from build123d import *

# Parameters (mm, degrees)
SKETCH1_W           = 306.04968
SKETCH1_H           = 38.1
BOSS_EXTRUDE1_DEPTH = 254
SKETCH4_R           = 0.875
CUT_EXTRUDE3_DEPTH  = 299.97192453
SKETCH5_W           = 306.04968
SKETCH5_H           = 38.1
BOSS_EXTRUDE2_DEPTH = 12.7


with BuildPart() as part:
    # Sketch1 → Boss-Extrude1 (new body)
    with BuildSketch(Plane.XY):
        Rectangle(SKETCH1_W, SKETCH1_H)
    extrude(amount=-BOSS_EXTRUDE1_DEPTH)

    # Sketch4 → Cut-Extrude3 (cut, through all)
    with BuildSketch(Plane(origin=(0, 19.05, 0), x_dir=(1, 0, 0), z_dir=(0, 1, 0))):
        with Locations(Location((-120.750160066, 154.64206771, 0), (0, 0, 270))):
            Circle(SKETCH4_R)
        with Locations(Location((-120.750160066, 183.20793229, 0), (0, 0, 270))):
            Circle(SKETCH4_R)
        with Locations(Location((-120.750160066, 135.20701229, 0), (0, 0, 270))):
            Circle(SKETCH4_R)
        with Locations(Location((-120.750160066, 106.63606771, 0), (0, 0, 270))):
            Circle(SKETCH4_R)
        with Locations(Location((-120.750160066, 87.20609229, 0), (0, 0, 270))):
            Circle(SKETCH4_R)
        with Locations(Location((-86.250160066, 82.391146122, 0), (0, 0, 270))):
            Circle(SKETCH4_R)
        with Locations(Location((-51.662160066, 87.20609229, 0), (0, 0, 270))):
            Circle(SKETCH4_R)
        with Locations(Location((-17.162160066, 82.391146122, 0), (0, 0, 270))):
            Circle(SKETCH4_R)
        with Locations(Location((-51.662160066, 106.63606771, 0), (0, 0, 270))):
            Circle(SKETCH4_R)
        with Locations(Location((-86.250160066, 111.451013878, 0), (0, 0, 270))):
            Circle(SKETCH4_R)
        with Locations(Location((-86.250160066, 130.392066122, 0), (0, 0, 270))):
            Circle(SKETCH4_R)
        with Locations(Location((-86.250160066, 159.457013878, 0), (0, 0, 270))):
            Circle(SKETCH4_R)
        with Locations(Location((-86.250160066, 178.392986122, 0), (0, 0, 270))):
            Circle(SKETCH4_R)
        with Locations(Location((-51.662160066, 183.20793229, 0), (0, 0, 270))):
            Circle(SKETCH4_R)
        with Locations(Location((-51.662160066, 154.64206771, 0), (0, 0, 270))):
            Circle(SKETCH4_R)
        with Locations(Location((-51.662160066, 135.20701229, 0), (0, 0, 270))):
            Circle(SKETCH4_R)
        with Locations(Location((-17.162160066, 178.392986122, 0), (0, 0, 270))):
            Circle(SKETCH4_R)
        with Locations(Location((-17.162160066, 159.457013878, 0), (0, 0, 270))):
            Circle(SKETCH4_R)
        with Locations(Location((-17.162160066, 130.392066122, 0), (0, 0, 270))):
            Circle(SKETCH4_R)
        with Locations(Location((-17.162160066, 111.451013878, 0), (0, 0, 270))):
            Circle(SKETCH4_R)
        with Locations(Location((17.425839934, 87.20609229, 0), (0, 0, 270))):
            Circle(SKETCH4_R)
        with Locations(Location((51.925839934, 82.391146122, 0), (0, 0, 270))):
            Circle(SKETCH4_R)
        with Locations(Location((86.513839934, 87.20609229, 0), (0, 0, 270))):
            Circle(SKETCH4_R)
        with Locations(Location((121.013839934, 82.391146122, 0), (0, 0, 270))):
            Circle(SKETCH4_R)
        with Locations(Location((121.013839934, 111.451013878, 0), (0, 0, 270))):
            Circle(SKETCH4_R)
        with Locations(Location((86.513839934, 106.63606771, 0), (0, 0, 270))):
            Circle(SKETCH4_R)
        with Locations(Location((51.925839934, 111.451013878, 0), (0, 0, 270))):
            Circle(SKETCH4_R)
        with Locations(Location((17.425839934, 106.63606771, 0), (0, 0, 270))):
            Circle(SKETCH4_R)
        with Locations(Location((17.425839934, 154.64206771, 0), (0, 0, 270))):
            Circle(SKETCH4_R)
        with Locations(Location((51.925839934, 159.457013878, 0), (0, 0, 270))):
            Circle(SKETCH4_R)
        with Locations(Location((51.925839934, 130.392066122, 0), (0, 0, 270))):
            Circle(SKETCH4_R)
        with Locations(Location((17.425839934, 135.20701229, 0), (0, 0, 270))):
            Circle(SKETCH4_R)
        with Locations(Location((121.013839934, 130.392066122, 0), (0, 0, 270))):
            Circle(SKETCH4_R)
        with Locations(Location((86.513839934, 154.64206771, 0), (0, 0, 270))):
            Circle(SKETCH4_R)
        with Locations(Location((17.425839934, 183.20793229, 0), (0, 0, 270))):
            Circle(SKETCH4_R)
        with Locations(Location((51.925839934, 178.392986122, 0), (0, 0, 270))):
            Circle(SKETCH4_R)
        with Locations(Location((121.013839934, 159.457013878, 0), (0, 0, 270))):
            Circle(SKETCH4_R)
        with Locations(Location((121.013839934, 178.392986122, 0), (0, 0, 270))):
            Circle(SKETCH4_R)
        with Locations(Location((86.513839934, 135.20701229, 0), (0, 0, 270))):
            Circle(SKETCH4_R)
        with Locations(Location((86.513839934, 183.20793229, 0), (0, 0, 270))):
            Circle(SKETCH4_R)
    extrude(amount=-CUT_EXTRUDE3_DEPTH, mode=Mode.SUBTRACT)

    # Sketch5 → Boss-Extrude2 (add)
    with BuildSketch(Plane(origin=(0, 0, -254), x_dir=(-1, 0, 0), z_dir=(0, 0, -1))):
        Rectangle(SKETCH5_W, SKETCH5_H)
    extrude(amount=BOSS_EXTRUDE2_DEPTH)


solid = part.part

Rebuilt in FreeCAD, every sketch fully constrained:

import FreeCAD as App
import Part
import Sketcher
from FreeCAD import Vector
Q = App.Units.Quantity

doc = App.newDocument("Part")
body = doc.addObject("PartDesign::Body", "Body")

sketch1 = doc.addObject("Sketcher::SketchObject", "Sketch")
body.addObject(sketch1)
sketch1.AttachmentSupport = (doc.XY_Plane, [""])
sketch1.MapMode = "FlatFace"
sketch1.addGeometry(Part.LineSegment(Vector(-153, 19, 0), Vector(-153, -19, 0)), False)
sketch1.addGeometry(Part.LineSegment(Vector(-153, -19, 0), Vector(153, -19, 0)), False)
sketch1.addGeometry(Part.LineSegment(Vector(153, -19, 0), Vector(153, 19, 0)), False)
sketch1.addGeometry(Part.LineSegment(Vector(153, 19, 0), Vector(-153, 19, 0)), False)
sketch1.addConstraint(Sketcher.Constraint("Coincident", 0, 2, 1, 1))
sketch1.addConstraint(Sketcher.Constraint("Coincident", 1, 2, 2, 1))
sketch1.addConstraint(Sketcher.Constraint("Coincident", 2, 2, 3, 1))
sketch1.addConstraint(Sketcher.Constraint("Coincident", 3, 2, 0, 1))
sketch1.addConstraint(Sketcher.Constraint("Vertical", 0))
sketch1.addConstraint(Sketcher.Constraint("Horizontal", 1))
sketch1.addConstraint(Sketcher.Constraint("Vertical", 2))
sketch1.addConstraint(Sketcher.Constraint("Horizontal", 3))
sketch1.addConstraint(Sketcher.Constraint("Symmetric", 0, 2, 2, 2, -1, 1))
sketch1.addConstraint(Sketcher.Constraint("DistanceY", 0, 2, 0, 1, Q("1.5 in")))
sketch1.addConstraint(Sketcher.Constraint("DistanceX", 1, 1, 1, 2, Q("12.0492 in")))
pad1 = doc.addObject("PartDesign::Pad", "Pad")
body.addObject(pad1)
pad1.Profile = sketch1
pad1.Length = Q("10 in")
pad1.Reversed = True

sketch2 = doc.addObject("Sketcher::SketchObject", "Sketch001")
body.addObject(sketch2)
sketch2.AttachmentSupport = (doc.XZ_Plane, [""])
sketch2.MapMode = "FlatFace"
sketch2.AttachmentOffset = App.Placement(Vector(0, 0, -0.75 * 25.4), App.Rotation())
sketch2.addGeometry(Part.Circle(Vector(-120.8, -154.6, 0), Vector(0, 0, 1), 0.9), False)
sketch2.addGeometry(Part.Circle(Vector(-120.8, -183.2, 0), Vector(0, 0, 1), 0.9), False)
sketch2.addGeometry(Part.Circle(Vector(-120.8, -135.2, 0), Vector(0, 0, 1), 0.9), False)
sketch2.addGeometry(Part.Circle(Vector(-120.8, -106.6, 0), Vector(0, 0, 1), 0.9), False)
sketch2.addGeometry(Part.Circle(Vector(-120.8, -87.2, 0), Vector(0, 0, 1), 0.9), False)
sketch2.addGeometry(Part.Circle(Vector(-86.3, -82.4, 0), Vector(0, 0, 1), 0.9), False)
sketch2.addGeometry(Part.Circle(Vector(-51.7, -87.2, 0), Vector(0, 0, 1), 0.9), False)
sketch2.addGeometry(Part.Circle(Vector(-17.2, -82.4, 0), Vector(0, 0, 1), 0.9), False)
sketch2.addGeometry(Part.Circle(Vector(-51.7, -106.6, 0), Vector(0, 0, 1), 0.9), False)
sketch2.addGeometry(Part.Circle(Vector(-86.3, -111.5, 0), Vector(0, 0, 1), 0.9), False)
sketch2.addGeometry(Part.Circle(Vector(-86.3, -130.4, 0), Vector(0, 0, 1), 0.9), False)
sketch2.addGeometry(Part.Circle(Vector(-86.3, -159.5, 0), Vector(0, 0, 1), 0.9), False)
sketch2.addGeometry(Part.Circle(Vector(-86.3, -178.4, 0), Vector(0, 0, 1), 0.9), False)
sketch2.addGeometry(Part.Circle(Vector(-51.7, -183.2, 0), Vector(0, 0, 1), 0.9), False)
sketch2.addGeometry(Part.Circle(Vector(-51.7, -154.6, 0), Vector(0, 0, 1), 0.9), False)
sketch2.addGeometry(Part.Circle(Vector(-51.7, -135.2, 0), Vector(0, 0, 1), 0.9), False)
sketch2.addGeometry(Part.Circle(Vector(-17.2, -178.4, 0), Vector(0, 0, 1), 0.9), False)
sketch2.addGeometry(Part.Circle(Vector(-17.2, -159.5, 0), Vector(0, 0, 1), 0.9), False)
sketch2.addGeometry(Part.Circle(Vector(-17.2, -130.4, 0), Vector(0, 0, 1), 0.9), False)
sketch2.addGeometry(Part.Circle(Vector(-17.2, -111.5, 0), Vector(0, 0, 1), 0.9), False)
sketch2.addGeometry(Part.Circle(Vector(17.4, -87.2, 0), Vector(0, 0, 1), 0.9), False)
sketch2.addGeometry(Part.Circle(Vector(51.9, -82.4, 0), Vector(0, 0, 1), 0.9), False)
sketch2.addGeometry(Part.Circle(Vector(86.5, -87.2, 0), Vector(0, 0, 1), 0.9), False)
sketch2.addGeometry(Part.Circle(Vector(121, -82.4, 0), Vector(0, 0, 1), 0.9), False)
sketch2.addGeometry(Part.Circle(Vector(121, -111.5, 0), Vector(0, 0, 1), 0.9), False)
sketch2.addGeometry(Part.Circle(Vector(86.5, -106.6, 0), Vector(0, 0, 1), 0.9), False)
sketch2.addGeometry(Part.Circle(Vector(51.9, -111.5, 0), Vector(0, 0, 1), 0.9), False)
sketch2.addGeometry(Part.Circle(Vector(17.4, -106.6, 0), Vector(0, 0, 1), 0.9), False)
sketch2.addGeometry(Part.Circle(Vector(17.4, -154.6, 0), Vector(0, 0, 1), 0.9), False)
sketch2.addGeometry(Part.Circle(Vector(51.9, -159.5, 0), Vector(0, 0, 1), 0.9), False)
sketch2.addGeometry(Part.Circle(Vector(51.9, -130.4, 0), Vector(0, 0, 1), 0.9), False)
sketch2.addGeometry(Part.Circle(Vector(17.4, -135.2, 0), Vector(0, 0, 1), 0.9), False)
sketch2.addGeometry(Part.Circle(Vector(121, -130.4, 0), Vector(0, 0, 1), 0.9), False)
sketch2.addGeometry(Part.Circle(Vector(86.5, -154.6, 0), Vector(0, 0, 1), 0.9), False)
sketch2.addGeometry(Part.Circle(Vector(17.4, -183.2, 0), Vector(0, 0, 1), 0.9), False)
sketch2.addGeometry(Part.Circle(Vector(51.9, -178.4, 0), Vector(0, 0, 1), 0.9), False)
sketch2.addGeometry(Part.Circle(Vector(121, -159.5, 0), Vector(0, 0, 1), 0.9), False)
sketch2.addGeometry(Part.Circle(Vector(121, -178.4, 0), Vector(0, 0, 1), 0.9), False)
sketch2.addGeometry(Part.Circle(Vector(86.5, -135.2, 0), Vector(0, 0, 1), 0.9), False)
sketch2.addGeometry(Part.Circle(Vector(86.5, -183.2, 0), Vector(0, 0, 1), 0.9), False)
sketch2.addConstraint(Sketcher.Constraint("Equal", 0, 1))
sketch2.addConstraint(Sketcher.Constraint("Equal", 1, 2))
sketch2.addConstraint(Sketcher.Constraint("Equal", 2, 3))
sketch2.addConstraint(Sketcher.Constraint("Equal", 3, 4))
sketch2.addConstraint(Sketcher.Constraint("Equal", 4, 5))
sketch2.addConstraint(Sketcher.Constraint("Equal", 5, 6))
sketch2.addConstraint(Sketcher.Constraint("Equal", 6, 7))
sketch2.addConstraint(Sketcher.Constraint("Equal", 7, 8))
sketch2.addConstraint(Sketcher.Constraint("Equal", 8, 9))
sketch2.addConstraint(Sketcher.Constraint("Equal", 9, 10))
sketch2.addConstraint(Sketcher.Constraint("Equal", 10, 11))
sketch2.addConstraint(Sketcher.Constraint("Equal", 11, 12))
sketch2.addConstraint(Sketcher.Constraint("Equal", 12, 13))
sketch2.addConstraint(Sketcher.Constraint("Equal", 13, 14))
sketch2.addConstraint(Sketcher.Constraint("Equal", 14, 15))
sketch2.addConstraint(Sketcher.Constraint("Equal", 15, 16))
sketch2.addConstraint(Sketcher.Constraint("Equal", 16, 17))
sketch2.addConstraint(Sketcher.Constraint("Equal", 17, 18))
sketch2.addConstraint(Sketcher.Constraint("Equal", 18, 19))
sketch2.addConstraint(Sketcher.Constraint("Equal", 19, 20))
sketch2.addConstraint(Sketcher.Constraint("Equal", 20, 21))
sketch2.addConstraint(Sketcher.Constraint("Equal", 21, 22))
sketch2.addConstraint(Sketcher.Constraint("Equal", 22, 23))
sketch2.addConstraint(Sketcher.Constraint("Equal", 23, 24))
sketch2.addConstraint(Sketcher.Constraint("Equal", 24, 25))
sketch2.addConstraint(Sketcher.Constraint("Equal", 25, 26))
sketch2.addConstraint(Sketcher.Constraint("Equal", 26, 27))
sketch2.addConstraint(Sketcher.Constraint("Equal", 27, 28))
sketch2.addConstraint(Sketcher.Constraint("Equal", 28, 29))
sketch2.addConstraint(Sketcher.Constraint("Equal", 29, 30))
sketch2.addConstraint(Sketcher.Constraint("Equal", 30, 31))
sketch2.addConstraint(Sketcher.Constraint("Equal", 31, 32))
sketch2.addConstraint(Sketcher.Constraint("Equal", 32, 33))
sketch2.addConstraint(Sketcher.Constraint("Equal", 33, 34))
sketch2.addConstraint(Sketcher.Constraint("Equal", 34, 35))
sketch2.addConstraint(Sketcher.Constraint("Equal", 35, 36))
sketch2.addConstraint(Sketcher.Constraint("Equal", 36, 37))
sketch2.addConstraint(Sketcher.Constraint("Equal", 37, 38))
sketch2.addConstraint(Sketcher.Constraint("Equal", 38, 39))
sketch2.addConstraint(Sketcher.Constraint("Horizontal", 4, 3, 6, 3))
sketch2.addConstraint(Sketcher.Constraint("Horizontal", 5, 3, 7, 3))
sketch2.addConstraint(Sketcher.Constraint("Horizontal", 3, 3, 8, 3))
sketch2.addConstraint(Sketcher.Constraint("Horizontal", 1, 3, 13, 3))
sketch2.addConstraint(Sketcher.Constraint("Horizontal", 0, 3, 14, 3))
sketch2.addConstraint(Sketcher.Constraint("Horizontal", 2, 3, 15, 3))
sketch2.addConstraint(Sketcher.Constraint("Horizontal", 12, 3, 16, 3))
sketch2.addConstraint(Sketcher.Constraint("Horizontal", 11, 3, 17, 3))
sketch2.addConstraint(Sketcher.Constraint("Horizontal", 10, 3, 18, 3))
sketch2.addConstraint(Sketcher.Constraint("Horizontal", 9, 3, 19, 3))
sketch2.addConstraint(Sketcher.Constraint("Horizontal", 6, 3, 20, 3))
sketch2.addConstraint(Sketcher.Constraint("Horizontal", 7, 3, 21, 3))
sketch2.addConstraint(Sketcher.Constraint("Horizontal", 20, 3, 22, 3))
sketch2.addConstraint(Sketcher.Constraint("Horizontal", 21, 3, 23, 3))
sketch2.addConstraint(Sketcher.Constraint("Horizontal", 19, 3, 24, 3))
sketch2.addConstraint(Sketcher.Constraint("Horizontal", 8, 3, 25, 3))
sketch2.addConstraint(Sketcher.Constraint("Horizontal", 24, 3, 26, 3))
sketch2.addConstraint(Sketcher.Constraint("Horizontal", 25, 3, 27, 3))
sketch2.addConstraint(Sketcher.Constraint("Horizontal", 14, 3, 28, 3))
sketch2.addConstraint(Sketcher.Constraint("Horizontal", 17, 3, 29, 3))
sketch2.addConstraint(Sketcher.Constraint("Horizontal", 18, 3, 30, 3))
sketch2.addConstraint(Sketcher.Constraint("Horizontal", 15, 3, 31, 3))
sketch2.addConstraint(Sketcher.Constraint("Horizontal", 30, 3, 32, 3))
sketch2.addConstraint(Sketcher.Constraint("Horizontal", 28, 3, 33, 3))
sketch2.addConstraint(Sketcher.Constraint("Horizontal", 13, 3, 34, 3))
sketch2.addConstraint(Sketcher.Constraint("Horizontal", 16, 3, 35, 3))
sketch2.addConstraint(Sketcher.Constraint("Horizontal", 29, 3, 36, 3))
sketch2.addConstraint(Sketcher.Constraint("Horizontal", 35, 3, 37, 3))
sketch2.addConstraint(Sketcher.Constraint("Horizontal", 31, 3, 38, 3))
sketch2.addConstraint(Sketcher.Constraint("Horizontal", 34, 3, 39, 3))
sketch2.addConstraint(Sketcher.Constraint("Vertical", 0, 3, 1, 3))
sketch2.addConstraint(Sketcher.Constraint("Vertical", 1, 3, 2, 3))
sketch2.addConstraint(Sketcher.Constraint("Vertical", 2, 3, 3, 3))
sketch2.addConstraint(Sketcher.Constraint("Vertical", 3, 3, 4, 3))
sketch2.addConstraint(Sketcher.Constraint("Vertical", 6, 3, 8, 3))
sketch2.addConstraint(Sketcher.Constraint("Vertical", 5, 3, 9, 3))
sketch2.addConstraint(Sketcher.Constraint("Vertical", 9, 3, 10, 3))
sketch2.addConstraint(Sketcher.Constraint("Vertical", 10, 3, 11, 3))
sketch2.addConstraint(Sketcher.Constraint("Vertical", 11, 3, 12, 3))
sketch2.addConstraint(Sketcher.Constraint("Vertical", 8, 3, 13, 3))
sketch2.addConstraint(Sketcher.Constraint("Vertical", 13, 3, 14, 3))
sketch2.addConstraint(Sketcher.Constraint("Vertical", 14, 3, 15, 3))
sketch2.addConstraint(Sketcher.Constraint("Vertical", 7, 3, 16, 3))
sketch2.addConstraint(Sketcher.Constraint("Vertical", 16, 3, 17, 3))
sketch2.addConstraint(Sketcher.Constraint("Vertical", 17, 3, 18, 3))
sketch2.addConstraint(Sketcher.Constraint("Vertical", 18, 3, 19, 3))
sketch2.addConstraint(Sketcher.Constraint("Vertical", 23, 3, 24, 3))
sketch2.addConstraint(Sketcher.Constraint("Vertical", 22, 3, 25, 3))
sketch2.addConstraint(Sketcher.Constraint("Vertical", 21, 3, 26, 3))
sketch2.addConstraint(Sketcher.Constraint("Vertical", 20, 3, 27, 3))
sketch2.addConstraint(Sketcher.Constraint("Vertical", 27, 3, 28, 3))
sketch2.addConstraint(Sketcher.Constraint("Vertical", 26, 3, 29, 3))
sketch2.addConstraint(Sketcher.Constraint("Vertical", 29, 3, 30, 3))
sketch2.addConstraint(Sketcher.Constraint("Vertical", 28, 3, 31, 3))
sketch2.addConstraint(Sketcher.Constraint("Vertical", 24, 3, 32, 3))
sketch2.addConstraint(Sketcher.Constraint("Vertical", 25, 3, 33, 3))
sketch2.addConstraint(Sketcher.Constraint("Vertical", 31, 3, 34, 3))
sketch2.addConstraint(Sketcher.Constraint("Vertical", 30, 3, 35, 3))
sketch2.addConstraint(Sketcher.Constraint("Vertical", 32, 3, 36, 3))
sketch2.addConstraint(Sketcher.Constraint("Vertical", 36, 3, 37, 3))
sketch2.addConstraint(Sketcher.Constraint("Vertical", 33, 3, 38, 3))
sketch2.addConstraint(Sketcher.Constraint("Vertical", 38, 3, 39, 3))
sketch2.addConstraint(Sketcher.Constraint("Diameter", 0, Q("1.75 mm")))
sketch2.addConstraint(Sketcher.Constraint("DistanceY", 0, 3, 3, 3, Q("1.89 in")))
sketch2.addConstraint(Sketcher.Constraint("DistanceX", 4, 3, 6, 3, Q("2.72 in")))
sketch2.addConstraint(Sketcher.Constraint("DistanceX", 5, 3, 7, 3, Q("2.72 in")))
sketch2.addConstraint(Sketcher.Constraint("DistanceY", 11, 3, 9, 3, Q("1.89 in")))
sketch2.addConstraint(Sketcher.Constraint("DistanceX", 6, 3, 20, 3, Q("2.72 in")))
sketch2.addConstraint(Sketcher.Constraint("DistanceX", 7, 3, 21, 3, Q("2.72 in")))
sketch2.addConstraint(Sketcher.Constraint("DistanceX", 20, 3, 22, 3, Q("2.72 in")))
sketch2.addConstraint(Sketcher.Constraint("DistanceX", 21, 3, 23, 3, Q("2.72 in")))
sketch2.addConstraint(Sketcher.Constraint("DistanceY", 1, 3, 2, 3, Q("1.8898 in")))
sketch2.addConstraint(Sketcher.Constraint("DistanceY", 2, 3, 4, 3, Q("1.8898 in")))
sketch2.addConstraint(Sketcher.Constraint("DistanceY", 12, 3, 10, 3, Q("1.8898 in")))
sketch2.addConstraint(Sketcher.Constraint("DistanceY", 18, 3, 7, 3, Q("1.8898 in")))
sketch2.addConstraint(Sketcher.Constraint("DistanceX", 4, 3, 5, 3, Q("34.5 mm")))
sketch2.addConstraint(Sketcher.Constraint("DistanceY", 2, 3, 9, 3, Q("23.755998 mm")))
sketch2.addConstraint(Sketcher.Constraint("DistanceY", 10, 3, 3, 3, Q("23.755998 mm")))
sketch2.addConstraint(Sketcher.Constraint("DistanceX", 0, 3, -1, 1, Q("120.75016 mm")))
sketch2.addConstraint(Sketcher.Constraint("DistanceY", 0, 3, -1, 1, Q("154.642068 mm")))
sketch2.addConstraint(Sketcher.Constraint("DistanceY", 1, 3, -1, 1, Q("183.207932 mm")))
pocket1 = doc.addObject("PartDesign::Pocket", "Pocket")
body.addObject(pocket1)
pocket1.Profile = sketch2
pocket1.Type = "ThroughAll"
pocket1.Reversed = True

sketch3 = doc.addObject("Sketcher::SketchObject", "Sketch002")
body.addObject(sketch3)
sketch3.AttachmentSupport = (doc.XY_Plane, [""])
sketch3.MapMode = "FlatFace"
sketch3.AttachmentOffset = App.Placement(Vector(0, 0, -10 * 25.4), App.Rotation())
sketch3.addGeometry(Part.LineSegment(Vector(153, 19, 0), Vector(153, -19, 0)), False)
sketch3.addGeometry(Part.LineSegment(Vector(153, -19, 0), Vector(-153, -19, 0)), False)
sketch3.addGeometry(Part.LineSegment(Vector(-153, -19, 0), Vector(-153, 19, 0)), False)
sketch3.addGeometry(Part.LineSegment(Vector(-153, 19, 0), Vector(153, 19, 0)), False)
sketch3.addConstraint(Sketcher.Constraint("Coincident", 0, 2, 1, 1))
sketch3.addConstraint(Sketcher.Constraint("Coincident", 1, 2, 2, 1))
sketch3.addConstraint(Sketcher.Constraint("Coincident", 2, 2, 3, 1))
sketch3.addConstraint(Sketcher.Constraint("Coincident", 3, 2, 0, 1))
sketch3.addConstraint(Sketcher.Constraint("Vertical", 0))
sketch3.addConstraint(Sketcher.Constraint("Horizontal", 1))
sketch3.addConstraint(Sketcher.Constraint("Vertical", 2))
sketch3.addConstraint(Sketcher.Constraint("Horizontal", 3))
sketch3.addConstraint(Sketcher.Constraint("Symmetric", 0, 2, 2, 2, -1, 1))
sketch3.addConstraint(Sketcher.Constraint("DistanceY", 0, 2, 0, 1, Q("1.5 in")))
sketch3.addConstraint(Sketcher.Constraint("DistanceX", 1, 2, 1, 1, Q("12.0492 in")))
pad2 = doc.addObject("PartDesign::Pad", "Pad001")
body.addObject(pad2)
pad2.Profile = sketch3
pad2.Length = Q("0.5 in")
pad2.Reversed = True

doc.recompute()
